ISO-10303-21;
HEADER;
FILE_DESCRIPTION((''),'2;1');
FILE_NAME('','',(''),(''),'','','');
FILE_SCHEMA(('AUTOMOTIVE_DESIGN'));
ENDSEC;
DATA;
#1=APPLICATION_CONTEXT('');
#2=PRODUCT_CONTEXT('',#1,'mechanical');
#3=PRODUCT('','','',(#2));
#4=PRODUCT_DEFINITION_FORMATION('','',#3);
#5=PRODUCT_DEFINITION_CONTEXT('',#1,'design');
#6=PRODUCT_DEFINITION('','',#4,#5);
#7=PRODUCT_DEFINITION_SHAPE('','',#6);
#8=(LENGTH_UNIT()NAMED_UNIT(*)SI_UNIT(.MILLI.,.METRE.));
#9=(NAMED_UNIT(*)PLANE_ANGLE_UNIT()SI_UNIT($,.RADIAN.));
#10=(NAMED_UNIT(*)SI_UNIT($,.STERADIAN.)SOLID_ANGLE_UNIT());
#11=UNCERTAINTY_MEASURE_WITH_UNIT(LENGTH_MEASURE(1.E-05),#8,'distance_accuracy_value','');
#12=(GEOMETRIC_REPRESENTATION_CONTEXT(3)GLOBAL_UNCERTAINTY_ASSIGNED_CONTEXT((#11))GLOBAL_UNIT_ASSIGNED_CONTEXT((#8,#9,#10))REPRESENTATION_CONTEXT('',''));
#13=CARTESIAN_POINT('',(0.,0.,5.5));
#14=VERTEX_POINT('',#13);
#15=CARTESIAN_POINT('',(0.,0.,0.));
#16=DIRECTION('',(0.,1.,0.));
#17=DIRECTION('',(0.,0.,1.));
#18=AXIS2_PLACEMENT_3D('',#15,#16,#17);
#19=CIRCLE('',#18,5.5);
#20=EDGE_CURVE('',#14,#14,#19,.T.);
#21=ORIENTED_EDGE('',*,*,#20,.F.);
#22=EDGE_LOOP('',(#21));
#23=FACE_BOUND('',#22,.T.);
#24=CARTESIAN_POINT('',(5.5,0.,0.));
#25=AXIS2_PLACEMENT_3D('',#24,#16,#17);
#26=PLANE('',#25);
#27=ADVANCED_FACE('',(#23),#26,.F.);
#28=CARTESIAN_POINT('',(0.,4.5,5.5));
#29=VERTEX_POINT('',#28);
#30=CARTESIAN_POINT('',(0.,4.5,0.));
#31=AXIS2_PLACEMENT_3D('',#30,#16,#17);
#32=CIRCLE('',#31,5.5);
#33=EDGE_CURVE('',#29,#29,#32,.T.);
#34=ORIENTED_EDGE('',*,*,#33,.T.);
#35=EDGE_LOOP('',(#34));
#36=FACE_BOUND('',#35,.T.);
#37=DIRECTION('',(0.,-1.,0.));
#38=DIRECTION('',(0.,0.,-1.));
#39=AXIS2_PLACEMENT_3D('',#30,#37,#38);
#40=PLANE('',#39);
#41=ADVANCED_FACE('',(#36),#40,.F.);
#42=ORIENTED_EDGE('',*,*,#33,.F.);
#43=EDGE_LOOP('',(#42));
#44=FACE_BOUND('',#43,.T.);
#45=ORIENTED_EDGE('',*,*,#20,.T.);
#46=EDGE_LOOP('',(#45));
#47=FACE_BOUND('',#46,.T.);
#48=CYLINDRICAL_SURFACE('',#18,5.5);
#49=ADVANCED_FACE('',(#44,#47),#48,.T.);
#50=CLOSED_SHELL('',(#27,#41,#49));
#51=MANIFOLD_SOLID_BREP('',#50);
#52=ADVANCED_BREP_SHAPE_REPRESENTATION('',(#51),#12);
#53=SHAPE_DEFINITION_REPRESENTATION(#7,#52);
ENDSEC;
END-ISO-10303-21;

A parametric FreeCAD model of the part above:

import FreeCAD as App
import Part
import Sketcher
Q = App.Units.Quantity

doc = App.newDocument("Part")
params = doc.addObject("Spreadsheet::Sheet", "Params")
for row, (alias, value) in enumerate([
    ("sketch1_width", "5.5 mm"),
    ("sketch1_height", "4.5 mm"),
    ("revolution_angle", "360 deg"),
], start=1):
    params.set(f"A{row}", alias)
    params.set(f"B{row}", "=" + value)
    params.setAlias(f"B{row}", alias)

body = doc.addObject("PartDesign::Body", "Body")

sketch1 = doc.addObject("Sketcher::SketchObject", "Sketch")
body.addObject(sketch1)
sketch1.AttachmentSupport = (doc.XY_Plane, [""])
sketch1.MapMode = "FlatFace"
sketch1.addGeometry([
    Part.LineSegment(App.Vector(0, 4.5, 0), App.Vector(0, 0, 0)),
    Part.LineSegment(App.Vector(0, 0, 0), App.Vector(5.5, 0, 0)),
    Part.LineSegment(App.Vector(5.5, 0, 0), App.Vector(5.5, 4.5, 0)),
    Part.LineSegment(App.Vector(5.5, 4.5, 0), App.Vector(0, 4.5, 0)),
], False)
sketch1.addConstraint([
    Sketcher.Constraint("Coincident", 0, 2, 1, 1),
    Sketcher.Constraint("Coincident", 1, 2, 2, 1),
    Sketcher.Constraint("Coincident", 2, 2, 3, 1),
    Sketcher.Constraint("Coincident", 3, 2, 0, 1),
    Sketcher.Constraint("Vertical", 0),
    Sketcher.Constraint("Horizontal", 1),
    Sketcher.Constraint("Vertical", 2),
    Sketcher.Constraint("Horizontal", 3),
    Sketcher.Constraint("Coincident", 0, 2, -1, 1),
    Sketcher.Constraint("DistanceX", 1, 1, 1, 2, Q("5.5 mm")),
    Sketcher.Constraint("DistanceY", 0, 2, 0, 1, Q("4.5 mm")),
])
sketch1.setExpression("Constraints[9]", "Params.sketch1_width")
sketch1.setExpression("Constraints[10]", "Params.sketch1_height")
revolution = doc.addObject("PartDesign::Revolution", "Revolution")
body.addObject(revolution)
revolution.Profile = sketch1
revolution.ReferenceAxis = (sketch1, ["V_Axis"])
revolution.setExpression("Angle", "Params.revolution_angle")

doc.recompute()
